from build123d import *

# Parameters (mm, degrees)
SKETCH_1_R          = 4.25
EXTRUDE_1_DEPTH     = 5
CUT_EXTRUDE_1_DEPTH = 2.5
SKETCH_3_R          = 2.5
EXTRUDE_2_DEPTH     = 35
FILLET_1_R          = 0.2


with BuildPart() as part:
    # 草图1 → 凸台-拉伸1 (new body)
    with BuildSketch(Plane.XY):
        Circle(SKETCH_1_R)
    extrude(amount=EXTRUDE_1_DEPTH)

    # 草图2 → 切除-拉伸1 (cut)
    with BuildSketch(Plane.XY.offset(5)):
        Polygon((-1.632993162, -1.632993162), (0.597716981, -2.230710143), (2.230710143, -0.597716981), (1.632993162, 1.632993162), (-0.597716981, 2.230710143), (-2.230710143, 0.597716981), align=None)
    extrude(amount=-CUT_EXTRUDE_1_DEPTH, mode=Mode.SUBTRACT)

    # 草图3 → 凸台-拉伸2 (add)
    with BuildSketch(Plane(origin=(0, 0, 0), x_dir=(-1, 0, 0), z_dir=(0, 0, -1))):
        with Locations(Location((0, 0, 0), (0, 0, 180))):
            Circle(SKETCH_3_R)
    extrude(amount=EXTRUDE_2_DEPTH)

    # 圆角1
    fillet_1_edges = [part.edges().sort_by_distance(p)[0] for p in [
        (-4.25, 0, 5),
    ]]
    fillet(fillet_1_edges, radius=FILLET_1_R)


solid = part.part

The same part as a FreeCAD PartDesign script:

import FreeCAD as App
import Part
import Sketcher

V = App.Vector
Q = App.Units.Quantity


def edges_at(feature, points):
    """Names of the edges that pass closest to the given points."""
    edges = feature.Shape.Edges
    near = lambda p: min(range(len(edges)), key=lambda i: edges[i].distToShape(Part.Vertex(*p))[0])
    return sorted({f"Edge{near(p) + 1}" for p in points})

doc = App.newDocument("Part")
body = doc.addObject("PartDesign::Body", "Body")

sketch1 = doc.addObject("Sketcher::SketchObject", "Sketch")
body.addObject(sketch1)
sketch1.AttachmentSupport = (doc.XY_Plane, [""])
sketch1.MapMode = "FlatFace"
sketch1.addGeometry(Part.Circle(V(0, 0, 0), V(0, 0, 1), 4.2), False)
sketch1.addConstraint([
    Sketcher.Constraint("Coincident", 0, 3, -1, 1),
    Sketcher.Constraint("Diameter", 0, 8.5),
])
pad1 = doc.addObject("PartDesign::Pad", "Pad")
body.addObject(pad1)
pad1.Profile = sketch1
pad1.Length = 5

sketch2 = doc.addObject("Sketcher::SketchObject", "Sketch001")
body.addObject(sketch2)
sketch2.AttachmentSupport = (doc.XY_Plane, [""])
sketch2.MapMode = "FlatFace"
sketch2.AttachmentOffset = App.Placement(V(0, 0, 5), App.Rotation())
sketch2.addGeometry([
    Part.LineSegment(V(-1.6, -1.6, 0), V(0.6, -2.2, 0)),
    Part.LineSegment(V(0.6, -2.2, 0), V(2.2, -0.6, 0)),
    Part.LineSegment(V(2.2, -0.6, 0), V(1.6, 1.6, 0)),
    Part.LineSegment(V(1.6, 1.6, 0), V(-0.6, 2.2, 0)),
    Part.LineSegment(V(-0.6, 2.2, 0), V(-2.2, 0.6, 0)),
    Part.LineSegment(V(-2.2, 0.6, 0), V(-1.6, -1.6, 0)),
], False)
sketch2.addConstraint([
    Sketcher.Constraint("Coincident", 0, 2, 1, 1),
    Sketcher.Constraint("Coincident", 1, 2, 2, 1),
    Sketcher.Constraint("Coincident", 2, 2, 3, 1),
    Sketcher.Constraint("Coincident", 3, 2, 4, 1),
    Sketcher.Constraint("Coincident", 4, 2, 5, 1),
    Sketcher.Constraint("Coincident", 5, 2, 0, 1),
    Sketcher.Constraint("Symmetric", 0, 2, 3, 2, -1, 1),
    Sketcher.Constraint("Symmetric", 1, 2, 4, 2, -1, 1),
    Sketcher.Constraint("Symmetric", 2, 2, 5, 2, -1, 1),
    Sketcher.Constraint("Equal", 0, 1),
    Sketcher.Constraint("Equal", 1, 2),
    Sketcher.Constraint("Angle", 0, Q("-15 deg")),
    Sketcher.Constraint("Angle", 1, Q("45 deg")),
    Sketcher.Constraint("Angle", 2, Q("105 deg")),
    Sketcher.Constraint("Distance", 0, 2.309401),
])
pocket1 = doc.addObject("PartDesign::Pocket", "Pocket")
body.addObject(pocket1)
pocket1.Profile = sketch2
pocket1.Length = 2.5

sketch3 = doc.addObject("Sketcher::SketchObject", "Sketch002")
body.addObject(sketch3)
sketch3.AttachmentSupport = (doc.XY_Plane, [""])
sketch3.MapMode = "FlatFace"
sketch3.addGeometry(Part.Circle(V(0, 0, 0), V(0, 0, 1), 2.5), False)
sketch3.addConstraint([
    Sketcher.Constraint("Coincident", 0, 3, -1, 1),
    Sketcher.Constraint("Diameter", 0, 5.0),
])
pad2 = doc.addObject("PartDesign::Pad", "Pad001")
body.addObject(pad2)
pad2.Profile = sketch3
pad2.Length = 35
pad2.Reversed = True
doc.recompute()

fillet = doc.addObject("PartDesign::Fillet", "Fillet")
body.addObject(fillet)
fillet.Base = (pad2, edges_at(pad2, [(-4.25, 0, 5)]))
fillet.Radius = 0.2

doc.recompute()
